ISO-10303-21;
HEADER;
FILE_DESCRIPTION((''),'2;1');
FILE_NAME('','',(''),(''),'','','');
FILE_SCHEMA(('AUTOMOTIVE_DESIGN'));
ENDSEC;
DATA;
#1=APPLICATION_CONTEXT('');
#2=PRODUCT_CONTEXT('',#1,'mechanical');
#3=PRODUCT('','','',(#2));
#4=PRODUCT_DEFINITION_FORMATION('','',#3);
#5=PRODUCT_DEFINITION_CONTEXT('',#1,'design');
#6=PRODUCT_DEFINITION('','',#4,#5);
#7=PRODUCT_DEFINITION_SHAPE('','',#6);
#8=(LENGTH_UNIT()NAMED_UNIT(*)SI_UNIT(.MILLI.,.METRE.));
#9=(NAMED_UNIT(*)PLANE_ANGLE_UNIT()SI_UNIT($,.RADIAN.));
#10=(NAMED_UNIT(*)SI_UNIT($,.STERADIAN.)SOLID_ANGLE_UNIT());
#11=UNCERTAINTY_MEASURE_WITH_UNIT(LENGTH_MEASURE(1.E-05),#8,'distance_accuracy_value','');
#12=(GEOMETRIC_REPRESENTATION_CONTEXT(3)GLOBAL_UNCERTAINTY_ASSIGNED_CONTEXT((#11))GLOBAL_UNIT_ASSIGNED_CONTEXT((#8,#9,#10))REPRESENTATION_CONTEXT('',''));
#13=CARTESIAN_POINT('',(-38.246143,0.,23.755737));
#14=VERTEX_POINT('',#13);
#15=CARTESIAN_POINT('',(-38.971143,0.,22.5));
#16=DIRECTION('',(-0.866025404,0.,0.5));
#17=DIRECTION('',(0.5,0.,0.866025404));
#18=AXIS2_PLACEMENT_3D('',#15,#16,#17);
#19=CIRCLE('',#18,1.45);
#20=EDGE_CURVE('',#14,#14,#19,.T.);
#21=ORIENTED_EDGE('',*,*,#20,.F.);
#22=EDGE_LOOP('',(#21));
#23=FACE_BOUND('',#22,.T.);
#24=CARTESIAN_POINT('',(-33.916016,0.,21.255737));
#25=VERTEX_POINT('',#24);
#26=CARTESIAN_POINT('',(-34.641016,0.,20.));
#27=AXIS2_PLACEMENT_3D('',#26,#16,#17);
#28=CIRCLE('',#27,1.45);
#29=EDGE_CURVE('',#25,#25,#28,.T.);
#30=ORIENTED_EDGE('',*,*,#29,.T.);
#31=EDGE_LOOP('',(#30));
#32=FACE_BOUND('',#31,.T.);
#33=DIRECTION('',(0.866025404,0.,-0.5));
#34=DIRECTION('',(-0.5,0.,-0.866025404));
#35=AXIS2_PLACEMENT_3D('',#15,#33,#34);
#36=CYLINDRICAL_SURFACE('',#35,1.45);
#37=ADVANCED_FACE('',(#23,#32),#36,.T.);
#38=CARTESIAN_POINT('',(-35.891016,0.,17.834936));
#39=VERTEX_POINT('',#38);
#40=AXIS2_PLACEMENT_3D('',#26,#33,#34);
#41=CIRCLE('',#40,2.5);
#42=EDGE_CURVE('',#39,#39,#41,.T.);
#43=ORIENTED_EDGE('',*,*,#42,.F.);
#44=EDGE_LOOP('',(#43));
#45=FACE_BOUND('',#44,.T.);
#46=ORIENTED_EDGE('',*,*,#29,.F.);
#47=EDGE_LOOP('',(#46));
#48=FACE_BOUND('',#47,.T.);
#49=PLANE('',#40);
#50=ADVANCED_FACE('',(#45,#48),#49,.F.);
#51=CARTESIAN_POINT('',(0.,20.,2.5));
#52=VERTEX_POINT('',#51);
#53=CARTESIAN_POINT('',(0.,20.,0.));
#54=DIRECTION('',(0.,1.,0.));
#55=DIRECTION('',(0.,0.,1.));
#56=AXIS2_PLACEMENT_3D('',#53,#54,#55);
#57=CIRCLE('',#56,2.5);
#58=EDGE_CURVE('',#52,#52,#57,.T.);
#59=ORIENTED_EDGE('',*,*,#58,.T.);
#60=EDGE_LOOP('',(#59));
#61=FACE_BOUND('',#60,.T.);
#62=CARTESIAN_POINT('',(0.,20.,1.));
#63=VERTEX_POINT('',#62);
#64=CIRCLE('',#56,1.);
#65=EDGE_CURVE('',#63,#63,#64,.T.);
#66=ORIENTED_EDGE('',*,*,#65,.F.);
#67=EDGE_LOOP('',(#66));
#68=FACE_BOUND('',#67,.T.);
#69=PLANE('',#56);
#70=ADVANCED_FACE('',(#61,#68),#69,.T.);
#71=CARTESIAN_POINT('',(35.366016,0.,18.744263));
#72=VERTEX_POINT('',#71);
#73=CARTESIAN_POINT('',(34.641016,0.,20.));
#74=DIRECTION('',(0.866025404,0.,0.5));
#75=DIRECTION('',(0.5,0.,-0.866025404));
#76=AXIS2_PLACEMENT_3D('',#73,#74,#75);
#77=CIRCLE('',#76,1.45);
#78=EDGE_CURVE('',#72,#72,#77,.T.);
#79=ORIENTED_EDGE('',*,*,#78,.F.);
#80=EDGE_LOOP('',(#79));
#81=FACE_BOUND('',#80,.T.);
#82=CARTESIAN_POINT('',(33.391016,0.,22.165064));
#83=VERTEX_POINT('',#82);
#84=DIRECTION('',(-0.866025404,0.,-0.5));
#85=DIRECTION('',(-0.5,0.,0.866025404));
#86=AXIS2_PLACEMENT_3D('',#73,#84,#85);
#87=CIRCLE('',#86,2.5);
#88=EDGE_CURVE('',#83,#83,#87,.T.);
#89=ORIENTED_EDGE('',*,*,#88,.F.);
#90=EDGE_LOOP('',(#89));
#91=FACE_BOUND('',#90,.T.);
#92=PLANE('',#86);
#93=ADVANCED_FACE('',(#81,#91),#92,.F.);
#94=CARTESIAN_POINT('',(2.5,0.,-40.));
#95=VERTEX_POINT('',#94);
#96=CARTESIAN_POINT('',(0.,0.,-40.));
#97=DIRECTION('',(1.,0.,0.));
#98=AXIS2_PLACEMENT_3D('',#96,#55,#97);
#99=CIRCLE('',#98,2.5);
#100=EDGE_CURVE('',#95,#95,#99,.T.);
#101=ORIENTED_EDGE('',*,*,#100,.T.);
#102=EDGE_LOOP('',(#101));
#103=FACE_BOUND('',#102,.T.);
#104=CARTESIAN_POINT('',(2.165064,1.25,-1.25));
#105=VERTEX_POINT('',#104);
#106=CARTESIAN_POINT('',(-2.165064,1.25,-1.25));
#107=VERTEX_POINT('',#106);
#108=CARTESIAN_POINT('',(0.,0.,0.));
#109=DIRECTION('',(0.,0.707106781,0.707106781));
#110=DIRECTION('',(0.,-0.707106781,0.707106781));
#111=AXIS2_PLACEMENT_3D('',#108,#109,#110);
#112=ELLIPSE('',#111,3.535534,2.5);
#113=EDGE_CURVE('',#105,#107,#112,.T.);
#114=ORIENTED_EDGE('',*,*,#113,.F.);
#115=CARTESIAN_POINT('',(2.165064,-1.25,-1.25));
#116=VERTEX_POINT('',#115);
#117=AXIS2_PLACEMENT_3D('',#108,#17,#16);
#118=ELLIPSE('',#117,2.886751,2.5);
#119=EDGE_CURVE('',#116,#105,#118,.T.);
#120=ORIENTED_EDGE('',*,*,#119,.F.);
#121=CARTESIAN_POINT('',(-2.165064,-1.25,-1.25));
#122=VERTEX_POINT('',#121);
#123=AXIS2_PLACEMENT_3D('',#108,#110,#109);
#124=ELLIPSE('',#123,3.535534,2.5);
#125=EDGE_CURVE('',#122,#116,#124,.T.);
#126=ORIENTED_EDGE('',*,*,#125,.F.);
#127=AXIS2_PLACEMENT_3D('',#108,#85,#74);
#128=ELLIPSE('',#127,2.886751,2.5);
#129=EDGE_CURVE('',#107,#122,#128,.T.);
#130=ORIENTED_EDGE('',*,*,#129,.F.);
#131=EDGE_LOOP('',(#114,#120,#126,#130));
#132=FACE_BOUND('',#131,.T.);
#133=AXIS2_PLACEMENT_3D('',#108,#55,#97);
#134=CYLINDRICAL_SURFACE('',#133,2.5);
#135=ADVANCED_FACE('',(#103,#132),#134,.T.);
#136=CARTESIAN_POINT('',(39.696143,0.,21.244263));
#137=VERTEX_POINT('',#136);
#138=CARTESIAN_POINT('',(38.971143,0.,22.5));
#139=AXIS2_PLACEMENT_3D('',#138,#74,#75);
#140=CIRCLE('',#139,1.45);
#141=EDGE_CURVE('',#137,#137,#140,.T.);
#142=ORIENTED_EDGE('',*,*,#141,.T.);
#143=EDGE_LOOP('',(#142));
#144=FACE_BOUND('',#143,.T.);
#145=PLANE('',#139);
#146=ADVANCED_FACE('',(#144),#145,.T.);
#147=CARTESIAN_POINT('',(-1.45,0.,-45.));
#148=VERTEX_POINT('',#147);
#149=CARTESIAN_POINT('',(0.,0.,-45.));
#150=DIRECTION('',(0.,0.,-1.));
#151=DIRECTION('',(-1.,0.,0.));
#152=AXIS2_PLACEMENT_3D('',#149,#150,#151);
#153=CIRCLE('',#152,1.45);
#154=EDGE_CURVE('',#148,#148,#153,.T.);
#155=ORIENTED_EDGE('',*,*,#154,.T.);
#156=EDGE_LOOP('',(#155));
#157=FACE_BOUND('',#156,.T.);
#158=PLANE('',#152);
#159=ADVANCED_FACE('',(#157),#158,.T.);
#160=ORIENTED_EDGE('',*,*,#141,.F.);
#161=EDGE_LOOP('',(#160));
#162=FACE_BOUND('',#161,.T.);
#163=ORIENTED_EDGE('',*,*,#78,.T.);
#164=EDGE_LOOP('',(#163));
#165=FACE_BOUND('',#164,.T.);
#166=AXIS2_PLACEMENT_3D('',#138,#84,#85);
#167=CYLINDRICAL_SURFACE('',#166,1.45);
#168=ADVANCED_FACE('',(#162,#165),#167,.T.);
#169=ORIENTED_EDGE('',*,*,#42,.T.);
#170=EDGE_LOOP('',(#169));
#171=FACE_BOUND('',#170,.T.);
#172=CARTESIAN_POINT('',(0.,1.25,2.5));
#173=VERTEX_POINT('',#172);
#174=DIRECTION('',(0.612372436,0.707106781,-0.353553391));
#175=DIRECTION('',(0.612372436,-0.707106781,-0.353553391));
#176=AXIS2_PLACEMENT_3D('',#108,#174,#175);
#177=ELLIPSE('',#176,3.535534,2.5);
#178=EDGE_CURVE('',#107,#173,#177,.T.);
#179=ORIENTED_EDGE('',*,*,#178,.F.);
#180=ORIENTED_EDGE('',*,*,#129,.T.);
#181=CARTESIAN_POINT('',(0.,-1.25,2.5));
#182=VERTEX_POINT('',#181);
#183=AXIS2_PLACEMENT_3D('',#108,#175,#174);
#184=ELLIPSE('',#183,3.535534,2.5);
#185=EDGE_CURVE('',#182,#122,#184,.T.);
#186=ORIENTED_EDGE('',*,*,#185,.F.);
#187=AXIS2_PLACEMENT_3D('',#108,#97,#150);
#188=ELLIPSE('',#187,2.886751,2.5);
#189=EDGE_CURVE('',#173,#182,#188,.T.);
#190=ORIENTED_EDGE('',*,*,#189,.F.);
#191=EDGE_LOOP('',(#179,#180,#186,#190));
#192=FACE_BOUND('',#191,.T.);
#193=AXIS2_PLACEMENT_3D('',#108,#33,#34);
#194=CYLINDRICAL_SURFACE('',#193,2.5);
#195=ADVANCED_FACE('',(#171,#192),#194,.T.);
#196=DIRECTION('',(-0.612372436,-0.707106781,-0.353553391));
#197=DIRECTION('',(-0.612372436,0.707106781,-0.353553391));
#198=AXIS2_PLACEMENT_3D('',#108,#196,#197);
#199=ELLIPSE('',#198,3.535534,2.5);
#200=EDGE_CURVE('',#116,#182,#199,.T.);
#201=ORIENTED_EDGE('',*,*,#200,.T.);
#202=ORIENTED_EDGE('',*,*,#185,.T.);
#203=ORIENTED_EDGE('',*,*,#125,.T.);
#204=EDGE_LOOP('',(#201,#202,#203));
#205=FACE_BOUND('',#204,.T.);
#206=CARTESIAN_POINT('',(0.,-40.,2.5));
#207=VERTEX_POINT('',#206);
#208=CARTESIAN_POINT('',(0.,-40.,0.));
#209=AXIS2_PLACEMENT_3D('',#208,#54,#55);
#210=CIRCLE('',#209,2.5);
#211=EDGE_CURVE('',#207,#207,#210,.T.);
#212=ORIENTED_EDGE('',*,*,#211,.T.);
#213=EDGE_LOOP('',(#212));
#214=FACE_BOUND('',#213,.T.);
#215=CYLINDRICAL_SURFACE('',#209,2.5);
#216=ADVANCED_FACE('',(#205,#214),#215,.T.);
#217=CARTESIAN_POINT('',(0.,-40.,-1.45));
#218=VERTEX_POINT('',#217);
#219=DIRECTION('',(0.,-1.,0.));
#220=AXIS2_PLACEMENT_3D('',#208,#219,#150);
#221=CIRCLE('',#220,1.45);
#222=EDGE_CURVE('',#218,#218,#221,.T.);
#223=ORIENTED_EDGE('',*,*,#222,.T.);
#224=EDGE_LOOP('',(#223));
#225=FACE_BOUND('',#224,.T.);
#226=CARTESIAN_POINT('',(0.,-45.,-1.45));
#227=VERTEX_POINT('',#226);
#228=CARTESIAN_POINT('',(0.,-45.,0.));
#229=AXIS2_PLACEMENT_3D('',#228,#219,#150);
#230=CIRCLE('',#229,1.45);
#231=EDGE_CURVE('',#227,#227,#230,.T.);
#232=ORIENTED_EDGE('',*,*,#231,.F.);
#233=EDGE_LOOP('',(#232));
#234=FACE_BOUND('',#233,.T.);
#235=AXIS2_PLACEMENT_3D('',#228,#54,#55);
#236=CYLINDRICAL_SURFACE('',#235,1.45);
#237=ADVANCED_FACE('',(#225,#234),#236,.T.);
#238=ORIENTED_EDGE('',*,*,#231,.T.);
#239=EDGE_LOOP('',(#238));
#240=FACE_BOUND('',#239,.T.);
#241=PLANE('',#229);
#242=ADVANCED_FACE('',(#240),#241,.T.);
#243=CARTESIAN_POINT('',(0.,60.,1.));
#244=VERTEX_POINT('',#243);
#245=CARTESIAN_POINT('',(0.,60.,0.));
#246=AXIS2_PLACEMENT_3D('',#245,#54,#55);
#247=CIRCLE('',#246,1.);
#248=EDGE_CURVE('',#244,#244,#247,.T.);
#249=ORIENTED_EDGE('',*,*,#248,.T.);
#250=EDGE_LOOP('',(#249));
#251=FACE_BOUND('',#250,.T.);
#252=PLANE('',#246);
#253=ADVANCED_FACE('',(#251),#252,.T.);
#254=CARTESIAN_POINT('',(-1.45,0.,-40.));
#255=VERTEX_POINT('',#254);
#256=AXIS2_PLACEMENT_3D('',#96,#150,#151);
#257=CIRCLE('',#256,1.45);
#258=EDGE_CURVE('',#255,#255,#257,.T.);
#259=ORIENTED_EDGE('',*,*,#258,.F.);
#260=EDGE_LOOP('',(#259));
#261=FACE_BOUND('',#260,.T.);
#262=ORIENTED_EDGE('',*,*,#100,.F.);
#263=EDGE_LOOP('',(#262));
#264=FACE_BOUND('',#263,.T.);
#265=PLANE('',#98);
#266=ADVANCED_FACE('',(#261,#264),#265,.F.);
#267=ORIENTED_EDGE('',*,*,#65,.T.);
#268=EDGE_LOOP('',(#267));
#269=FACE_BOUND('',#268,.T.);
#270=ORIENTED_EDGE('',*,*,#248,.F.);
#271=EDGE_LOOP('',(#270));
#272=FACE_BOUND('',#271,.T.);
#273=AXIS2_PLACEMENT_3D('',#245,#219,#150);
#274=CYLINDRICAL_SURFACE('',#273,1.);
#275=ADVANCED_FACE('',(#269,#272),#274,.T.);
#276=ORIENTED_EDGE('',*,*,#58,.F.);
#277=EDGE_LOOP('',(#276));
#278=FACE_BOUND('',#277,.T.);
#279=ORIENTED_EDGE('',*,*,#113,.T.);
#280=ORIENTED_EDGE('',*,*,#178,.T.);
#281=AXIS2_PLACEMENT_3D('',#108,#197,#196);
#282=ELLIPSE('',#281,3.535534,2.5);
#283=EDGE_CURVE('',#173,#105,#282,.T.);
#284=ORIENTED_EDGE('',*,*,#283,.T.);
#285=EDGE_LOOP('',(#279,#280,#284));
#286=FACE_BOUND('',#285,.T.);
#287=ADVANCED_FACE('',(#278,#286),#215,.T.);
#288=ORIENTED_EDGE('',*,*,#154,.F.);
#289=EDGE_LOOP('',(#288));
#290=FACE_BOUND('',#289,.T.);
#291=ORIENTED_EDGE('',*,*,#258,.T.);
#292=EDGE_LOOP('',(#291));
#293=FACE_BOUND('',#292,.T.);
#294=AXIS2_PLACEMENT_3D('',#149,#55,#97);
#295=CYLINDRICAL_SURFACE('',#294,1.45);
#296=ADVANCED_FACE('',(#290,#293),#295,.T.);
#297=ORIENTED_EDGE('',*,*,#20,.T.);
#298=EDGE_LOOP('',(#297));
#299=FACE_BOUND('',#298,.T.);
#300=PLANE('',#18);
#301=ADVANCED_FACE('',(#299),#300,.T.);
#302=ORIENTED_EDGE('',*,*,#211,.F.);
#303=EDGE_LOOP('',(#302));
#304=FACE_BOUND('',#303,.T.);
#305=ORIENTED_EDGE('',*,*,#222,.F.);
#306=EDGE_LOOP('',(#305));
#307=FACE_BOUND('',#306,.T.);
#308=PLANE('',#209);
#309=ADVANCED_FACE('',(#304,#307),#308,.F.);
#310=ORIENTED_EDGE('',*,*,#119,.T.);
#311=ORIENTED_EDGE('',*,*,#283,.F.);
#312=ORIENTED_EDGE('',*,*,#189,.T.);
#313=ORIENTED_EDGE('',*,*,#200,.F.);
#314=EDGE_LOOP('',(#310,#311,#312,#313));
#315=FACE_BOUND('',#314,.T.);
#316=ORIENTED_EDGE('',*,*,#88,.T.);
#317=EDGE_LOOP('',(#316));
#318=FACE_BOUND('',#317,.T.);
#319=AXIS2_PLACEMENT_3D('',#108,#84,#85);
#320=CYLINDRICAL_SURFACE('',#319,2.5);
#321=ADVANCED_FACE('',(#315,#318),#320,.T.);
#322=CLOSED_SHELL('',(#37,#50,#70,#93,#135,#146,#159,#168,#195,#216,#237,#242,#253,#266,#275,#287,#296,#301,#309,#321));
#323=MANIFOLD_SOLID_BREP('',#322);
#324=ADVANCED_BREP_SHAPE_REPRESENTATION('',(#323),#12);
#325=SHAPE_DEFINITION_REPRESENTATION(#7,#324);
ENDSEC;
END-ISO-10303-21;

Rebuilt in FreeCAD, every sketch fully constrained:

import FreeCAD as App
import Part
import Sketcher

V = App.Vector


def add_polygon(sketch, points):
    """Adds a closed chain of lines whose ends are joined by coincident constraints."""
    first, n = sketch.GeometryCount, len(points)
    for a, b in zip(points, points[1:] + points[:1]):
        sketch.addGeometry(Part.LineSegment(App.Vector(*a, 0), App.Vector(*b, 0)), False)
    for i in range(n):
        sketch.addConstraint(Sketcher.Constraint("Coincident", first + i, 2, first + (i + 1) % n, 1))

doc = App.newDocument("Part")
params = doc.addObject("Spreadsheet::Sheet", "Params")
for row, (alias, value) in enumerate([
    ("sketch1_height", "40 mm"),
    ("sketch1_width", "2.5 mm"),
    ("revolution_angle", "360 deg"),
    ("sketch2_diameter", "2.9 mm"),
    ("pad1_length", "5 mm"),
    ("sketch3_diameter", "5 mm"),
    ("pad2_length", "20 mm"),
    ("pad2_length2", "40 mm"),
    ("sketch4_diameter", "2 mm"),
    ("pad3_length", "40 mm"),
    ("sketch5_diameter", "2.9 mm"),
    ("pad4_length", "5 mm"),
], start=1):
    params.set(f"A{row}", alias)
    params.set(f"B{row}", "=" + value)
    params.setAlias(f"B{row}", alias)

body = doc.addObject("PartDesign::Body", "Body")

# Sketch on XZ plane
sketch1 = body.newObject("Sketcher::SketchObject", "Sketch")
sketch1.AttachmentSupport = (doc.getObject("XZ_Plane"), [""])
sketch1.MapMode = "FlatFace"
add_polygon(sketch1, [(-2.5, -40), (-2.5, 0), (0, 0), (0, -40)])  # lines 0-3
sketch1.addConstraint(Sketcher.Constraint("Vertical", 0))
sketch1.addConstraint(Sketcher.Constraint("Horizontal", 1))
sketch1.addConstraint(Sketcher.Constraint("Vertical", 2))
sketch1.addConstraint(Sketcher.Constraint("Horizontal", 3))
sketch1.addConstraint(Sketcher.Constraint("Coincident", 1, 2, -1, 1))
sketch1.addConstraint(Sketcher.Constraint("DistanceY", 0, 1, 0, 2, 40.0))
sketch1.addConstraint(Sketcher.Constraint("DistanceX", 1, 1, 1, 2, 2.5))
sketch1.setExpression("Constraints[9]", "Params.sketch1_height")
sketch1.setExpression("Constraints[10]", "Params.sketch1_width")
revolution = body.newObject("PartDesign::Revolution", "Revolution")
revolution.Profile = sketch1
revolution.ReferenceAxis = (sketch1, ["V_Axis"])
revolution.setExpression("Angle", "Params.revolution_angle")

# Sketch on XY plane
sketch2 = body.newObject("Sketcher::SketchObject", "Sketch001")
sketch2.AttachmentSupport = (doc.getObject("XY_Plane"), [""])
sketch2.MapMode = "FlatFace"
sketch2.AttachmentOffset = App.Placement(V(0, 0, -40), App.Rotation())
sketch2.addGeometry(Part.Circle(V(0, 0, 0), V(0, 0, 1), 1.4), False)
sketch2.addConstraint(Sketcher.Constraint("Coincident", 0, 3, -1, 1))
sketch2.addConstraint(Sketcher.Constraint("Diameter", 0, 2.9))
sketch2.setExpression("Constraints[1]", "Params.sketch2_diameter")
pad1 = body.newObject("PartDesign::Pad", "Pad")
pad1.Profile = sketch2
pad1.setExpression("Length", "Params.pad1_length")
pad1.Reversed = True
doc.recompute()

polarpattern = body.newObject("PartDesign::PolarPattern", "PolarPattern")
polarpattern.Originals = [revolution]
polarpattern.Axis = (doc.getObject("Y_Axis"), [""])
polarpattern.Angle = 360
polarpattern.Occurrences = 3
body.Tip = polarpattern

# Sketch on XZ plane
sketch3 = body.newObject("Sketcher::SketchObject", "Sketch002")
sketch3.AttachmentSupport = (doc.getObject("XZ_Plane"), [""])
sketch3.MapMode = "FlatFace"
sketch3.addGeometry(Part.Circle(V(0, 0, 0), V(0, 0, 1), 2.5), False)
sketch3.addConstraint(Sketcher.Constraint("Coincident", 0, 3, -1, 1))
sketch3.addConstraint(Sketcher.Constraint("Diameter", 0, 5.0))
sketch3.setExpression("Constraints[1]", "Params.sketch3_diameter")
pad2 = body.newObject("PartDesign::Pad", "Pad001")
pad2.Profile = sketch3
pad2.Type = "TwoLengths"
pad2.setExpression("Length", "Params.pad2_length")
pad2.setExpression("Length2", "Params.pad2_length2")
pad2.Reversed = True

# Sketch on XZ plane
sketch4 = body.newObject("Sketcher::SketchObject", "Sketch003")
sketch4.AttachmentSupport = (doc.getObject("XZ_Plane"), [""])
sketch4.MapMode = "FlatFace"
sketch4.AttachmentOffset = App.Placement(V(0, 0, -20), App.Rotation())
sketch4.addGeometry(Part.Circle(V(0, 0, 0), V(0, 0, 1), 1), False)
sketch4.addConstraint(Sketcher.Constraint("Coincident", 0, 3, -1, 1))
sketch4.addConstraint(Sketcher.Constraint("Diameter", 0, 2.0))
sketch4.setExpression("Constraints[1]", "Params.sketch4_diameter")
pad3 = body.newObject("PartDesign::Pad", "Pad002")
pad3.Profile = sketch4
pad3.setExpression("Length", "Params.pad3_length")
pad3.Reversed = True
doc.recompute()

polarpattern2 = body.newObject("PartDesign::PolarPattern", "PolarPattern001")
polarpattern2.Originals = [pad1]
polarpattern2.Axis = (doc.getObject("Y_Axis"), [""])
polarpattern2.Angle = 360
polarpattern2.Occurrences = 3
body.Tip = polarpattern2

# Sketch on XZ plane
sketch5 = body.newObject("Sketcher::SketchObject", "Sketch004")
sketch5.AttachmentSupport = (doc.getObject("XZ_Plane"), [""])
sketch5.MapMode = "FlatFace"
sketch5.AttachmentOffset = App.Placement(V(0, 0, 40), App.Rotation())
sketch5.addGeometry(Part.Circle(V(0, 0, 0), V(0, 0, 1), 1.4), False)
sketch5.addConstraint(Sketcher.Constraint("Coincident", 0, 3, -1, 1))
sketch5.addConstraint(Sketcher.Constraint("Diameter", 0, 2.9))
sketch5.setExpression("Constraints[1]", "Params.sketch5_diameter")
pad4 = body.newObject("PartDesign::Pad", "Pad003")
pad4.Profile = sketch5
pad4.setExpression("Length", "Params.pad4_length")

doc.recompute()
